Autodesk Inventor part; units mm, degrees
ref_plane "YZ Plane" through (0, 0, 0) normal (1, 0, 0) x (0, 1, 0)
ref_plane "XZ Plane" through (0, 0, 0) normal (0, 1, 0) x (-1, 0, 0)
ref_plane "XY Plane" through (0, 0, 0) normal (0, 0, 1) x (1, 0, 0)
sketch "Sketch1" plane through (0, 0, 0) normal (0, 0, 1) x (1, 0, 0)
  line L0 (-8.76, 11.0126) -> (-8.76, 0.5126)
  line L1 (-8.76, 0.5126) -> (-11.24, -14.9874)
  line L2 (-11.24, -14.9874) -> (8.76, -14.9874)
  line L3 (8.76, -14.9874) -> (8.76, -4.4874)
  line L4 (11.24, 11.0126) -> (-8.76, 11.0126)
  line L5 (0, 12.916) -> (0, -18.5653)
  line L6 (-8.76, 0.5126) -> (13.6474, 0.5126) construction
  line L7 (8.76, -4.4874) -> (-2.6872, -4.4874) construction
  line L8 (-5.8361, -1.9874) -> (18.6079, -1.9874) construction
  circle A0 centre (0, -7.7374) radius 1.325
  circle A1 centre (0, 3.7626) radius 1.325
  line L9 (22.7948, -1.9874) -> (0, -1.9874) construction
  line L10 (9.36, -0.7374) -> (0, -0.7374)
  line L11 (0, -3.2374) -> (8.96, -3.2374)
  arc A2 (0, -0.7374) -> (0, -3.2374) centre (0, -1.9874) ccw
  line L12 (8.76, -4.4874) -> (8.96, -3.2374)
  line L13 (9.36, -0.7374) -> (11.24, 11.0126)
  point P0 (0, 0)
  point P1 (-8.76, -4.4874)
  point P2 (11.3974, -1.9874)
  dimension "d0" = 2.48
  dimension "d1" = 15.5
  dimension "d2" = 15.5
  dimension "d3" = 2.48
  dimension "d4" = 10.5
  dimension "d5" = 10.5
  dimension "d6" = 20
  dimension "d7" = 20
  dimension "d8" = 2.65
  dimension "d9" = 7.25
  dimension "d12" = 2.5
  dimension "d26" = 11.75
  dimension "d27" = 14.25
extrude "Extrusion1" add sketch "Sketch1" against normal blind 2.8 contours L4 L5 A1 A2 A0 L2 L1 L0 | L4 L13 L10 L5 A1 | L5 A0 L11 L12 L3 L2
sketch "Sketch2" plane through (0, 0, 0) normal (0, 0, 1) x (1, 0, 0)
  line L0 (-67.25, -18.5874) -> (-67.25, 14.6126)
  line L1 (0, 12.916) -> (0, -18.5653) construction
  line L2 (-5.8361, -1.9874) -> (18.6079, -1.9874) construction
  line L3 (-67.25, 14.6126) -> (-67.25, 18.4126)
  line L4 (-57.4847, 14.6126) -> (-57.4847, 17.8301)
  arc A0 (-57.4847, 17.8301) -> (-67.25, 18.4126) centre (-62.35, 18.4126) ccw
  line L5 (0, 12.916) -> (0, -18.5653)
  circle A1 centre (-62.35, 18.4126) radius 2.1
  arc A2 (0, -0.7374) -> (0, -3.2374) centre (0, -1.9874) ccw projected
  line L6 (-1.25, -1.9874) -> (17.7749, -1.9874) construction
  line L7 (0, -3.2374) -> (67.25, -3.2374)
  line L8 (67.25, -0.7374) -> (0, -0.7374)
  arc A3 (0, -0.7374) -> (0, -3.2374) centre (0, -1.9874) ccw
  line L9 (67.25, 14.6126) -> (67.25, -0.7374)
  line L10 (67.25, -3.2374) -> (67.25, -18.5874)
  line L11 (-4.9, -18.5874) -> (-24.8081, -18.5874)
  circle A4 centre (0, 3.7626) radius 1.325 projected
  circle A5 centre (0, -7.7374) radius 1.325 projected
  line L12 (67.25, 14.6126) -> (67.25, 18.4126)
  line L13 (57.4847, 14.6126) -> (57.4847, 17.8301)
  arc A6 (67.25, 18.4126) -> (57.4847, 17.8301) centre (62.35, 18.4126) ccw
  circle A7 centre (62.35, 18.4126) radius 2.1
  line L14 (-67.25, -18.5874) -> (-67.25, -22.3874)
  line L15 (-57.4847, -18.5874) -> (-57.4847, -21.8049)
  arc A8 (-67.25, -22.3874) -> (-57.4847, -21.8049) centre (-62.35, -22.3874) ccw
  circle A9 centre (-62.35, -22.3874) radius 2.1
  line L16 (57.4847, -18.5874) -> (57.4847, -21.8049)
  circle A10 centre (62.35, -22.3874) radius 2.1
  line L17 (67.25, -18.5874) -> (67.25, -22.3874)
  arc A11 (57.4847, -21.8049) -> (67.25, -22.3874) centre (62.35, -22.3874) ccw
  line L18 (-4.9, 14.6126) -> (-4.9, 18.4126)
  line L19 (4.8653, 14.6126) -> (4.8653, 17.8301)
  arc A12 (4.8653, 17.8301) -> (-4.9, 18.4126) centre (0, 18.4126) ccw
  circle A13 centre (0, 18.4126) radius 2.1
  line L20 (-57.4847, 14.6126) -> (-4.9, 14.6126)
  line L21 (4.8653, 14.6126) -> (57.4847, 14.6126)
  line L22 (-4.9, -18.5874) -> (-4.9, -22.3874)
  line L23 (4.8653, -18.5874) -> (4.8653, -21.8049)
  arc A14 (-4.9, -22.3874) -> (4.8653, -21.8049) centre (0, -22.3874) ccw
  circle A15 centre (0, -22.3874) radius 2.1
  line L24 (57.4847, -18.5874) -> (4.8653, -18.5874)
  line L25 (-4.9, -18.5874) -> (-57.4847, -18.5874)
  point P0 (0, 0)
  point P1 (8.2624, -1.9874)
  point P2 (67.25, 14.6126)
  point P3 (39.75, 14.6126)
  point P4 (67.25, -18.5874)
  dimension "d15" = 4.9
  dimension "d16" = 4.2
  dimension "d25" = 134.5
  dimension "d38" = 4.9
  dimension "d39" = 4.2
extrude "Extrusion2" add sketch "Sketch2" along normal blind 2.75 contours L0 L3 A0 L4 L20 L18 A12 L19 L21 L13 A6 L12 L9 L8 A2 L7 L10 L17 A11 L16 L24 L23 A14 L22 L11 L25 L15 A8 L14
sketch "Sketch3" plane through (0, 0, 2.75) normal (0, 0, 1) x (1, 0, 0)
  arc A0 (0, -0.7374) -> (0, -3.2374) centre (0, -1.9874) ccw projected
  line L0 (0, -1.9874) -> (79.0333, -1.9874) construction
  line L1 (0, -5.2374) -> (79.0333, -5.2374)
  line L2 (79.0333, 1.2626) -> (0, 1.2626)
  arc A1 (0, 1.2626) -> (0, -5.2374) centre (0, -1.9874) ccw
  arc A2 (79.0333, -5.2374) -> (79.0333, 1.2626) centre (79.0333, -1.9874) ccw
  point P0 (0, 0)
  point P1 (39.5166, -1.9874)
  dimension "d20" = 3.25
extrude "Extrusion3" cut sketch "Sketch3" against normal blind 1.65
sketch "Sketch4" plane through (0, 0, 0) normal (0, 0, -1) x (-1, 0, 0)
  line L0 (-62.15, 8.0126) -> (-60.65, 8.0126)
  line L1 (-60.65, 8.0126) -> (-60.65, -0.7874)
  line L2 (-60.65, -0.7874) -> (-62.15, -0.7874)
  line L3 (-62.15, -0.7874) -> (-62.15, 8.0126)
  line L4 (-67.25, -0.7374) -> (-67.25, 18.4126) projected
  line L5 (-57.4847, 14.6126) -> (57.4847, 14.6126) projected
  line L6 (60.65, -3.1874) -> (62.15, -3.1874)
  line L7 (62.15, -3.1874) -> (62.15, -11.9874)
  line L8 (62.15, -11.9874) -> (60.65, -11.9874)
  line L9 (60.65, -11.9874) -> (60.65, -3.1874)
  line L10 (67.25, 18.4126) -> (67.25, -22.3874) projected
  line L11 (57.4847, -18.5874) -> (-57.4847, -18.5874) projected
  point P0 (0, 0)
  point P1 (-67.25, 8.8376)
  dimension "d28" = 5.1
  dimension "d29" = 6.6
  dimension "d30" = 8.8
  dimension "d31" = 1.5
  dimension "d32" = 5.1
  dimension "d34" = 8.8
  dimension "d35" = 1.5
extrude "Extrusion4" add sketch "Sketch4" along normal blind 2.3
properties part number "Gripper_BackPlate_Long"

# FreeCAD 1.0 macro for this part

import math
import FreeCAD as App
import Part
import Sketcher

V = App.Vector
Q = App.Units.Quantity


def add_polygon(sketch, points):
    """Adds a closed chain of lines whose ends are joined by coincident constraints."""
    first, n = sketch.GeometryCount, len(points)
    for a, b in zip(points, points[1:] + points[:1]):
        sketch.addGeometry(Part.LineSegment(App.Vector(*a, 0), App.Vector(*b, 0)), False)
    for i in range(n):
        sketch.addConstraint(Sketcher.Constraint("Coincident", first + i, 2, first + (i + 1) % n, 1))

doc = App.newDocument("Part")
body = doc.addObject("PartDesign::Body", "Body")

# Sketch on XY plane
sketch1 = body.newObject("Sketcher::SketchObject", "Sketch")
sketch1.AttachmentSupport = (doc.getObject("XY_Plane"), [""])
sketch1.MapMode = "FlatFace"
sketch1.addGeometry(Part.LineSegment(V(-8.8, 11, 0), V(-8.8, 0.5, 0)), False)
sketch1.addGeometry(Part.LineSegment(V(-8.8, 0.5, 0), V(-11.2, -15, 0)), False)
sketch1.addGeometry(Part.LineSegment(V(-11.2, -15, 0), V(8.8, -15, 0)), False)
sketch1.addGeometry(Part.LineSegment(V(8.8, -15, 0), V(8.8, -4.5, 0)), False)
sketch1.addGeometry(Part.LineSegment(V(8.8, -4.5, 0), V(9, -3.2, 0)), False)
sketch1.addGeometry(Part.LineSegment(V(9, -3.2, 0), V(0, -3.2, 0)), False)
sketch1.addGeometry(Part.ArcOfCircle(Part.Circle(V(0, -2, 0), V(0, 0, 1), 1.2), math.radians(90), math.radians(270)), False)
sketch1.addGeometry(Part.LineSegment(V(0, -0.7, 0), V(9.4, -0.7, 0)), False)
sketch1.addGeometry(Part.LineSegment(V(9.4, -0.7, 0), V(11.2, 11, 0)), False)
sketch1.addGeometry(Part.LineSegment(V(11.2, 11, 0), V(-8.8, 11, 0)), False)
sketch1.addGeometry(Part.Circle(V(0, 3.8, 0), V(0, 0, 1), 1.3), False)
sketch1.addGeometry(Part.Circle(V(0, -7.7, 0), V(0, 0, 1), 1.3), False)
sketch1.addConstraint(Sketcher.Constraint("Coincident", 0, 2, 1, 1))
sketch1.addConstraint(Sketcher.Constraint("Coincident", 1, 2, 2, 1))
sketch1.addConstraint(Sketcher.Constraint("Coincident", 2, 2, 3, 1))
sketch1.addConstraint(Sketcher.Constraint("Coincident", 3, 2, 4, 1))
sketch1.addConstraint(Sketcher.Constraint("Coincident", 4, 2, 5, 1))
sketch1.addConstraint(Sketcher.Constraint("Tangent", 5, 2, 6, 2))
sketch1.addConstraint(Sketcher.Constraint("Tangent", 6, 1, 7, 1))
sketch1.addConstraint(Sketcher.Constraint("Coincident", 7, 2, 8, 1))
sketch1.addConstraint(Sketcher.Constraint("Coincident", 8, 2, 9, 1))
sketch1.addConstraint(Sketcher.Constraint("Coincident", 9, 2, 0, 1))
sketch1.addConstraint(Sketcher.Constraint("Vertical", 0))
sketch1.addConstraint(Sketcher.Constraint("Horizontal", 2))
sketch1.addConstraint(Sketcher.Constraint("Vertical", 3))
sketch1.addConstraint(Sketcher.Constraint("Horizontal", 5))
sketch1.addConstraint(Sketcher.Constraint("Horizontal", 7))
sketch1.addConstraint(Sketcher.Constraint("Horizontal", 9))
sketch1.addConstraint(Sketcher.Constraint("Equal", 10, 11))
sketch1.addConstraint(Sketcher.Constraint("PointOnObject", 6, 3, -2))
sketch1.addConstraint(Sketcher.Constraint("PointOnObject", 10, 3, -2))
sketch1.addConstraint(Sketcher.Constraint("PointOnObject", 11, 3, -2))
sketch1.addConstraint(Sketcher.Constraint("Parallel", 1, 4))
sketch1.addConstraint(Sketcher.Constraint("Parallel", 4, 8))
sketch1.addConstraint(Sketcher.Constraint("Equal", 2, 9))
sketch1.addConstraint(Sketcher.Constraint("Equal", 0, 3))
sketch1.addConstraint(Sketcher.Constraint("Diameter", 10, Q("2.65 mm")))
sketch1.addConstraint(Sketcher.Constraint("DistanceX", 2, 1, 2, 2, Q("20 mm")))
sketch1.addConstraint(Sketcher.Constraint("Radius", 6, Q("1.25 mm")))
sketch1.addConstraint(Sketcher.Constraint("DistanceY", 0, 2, 0, 1, Q("10.5 mm")))
sketch1.addConstraint(Sketcher.Constraint("DistanceY", 6, 3, 0, 2, Q("2.5 mm")))
sketch1.addConstraint(Sketcher.Constraint("DistanceY", 1, 2, 0, 2, Q("15.5 mm")))
sketch1.addConstraint(Sketcher.Constraint("DistanceY", 1, 2, 11, 3, Q("7.25 mm")))
sketch1.addConstraint(Sketcher.Constraint("DistanceX", 1, 2, 0, 2, Q("2.48 mm")))
sketch1.addConstraint(Sketcher.Constraint("DistanceY", 10, 3, 8, 2, Q("7.25 mm")))
sketch1.addConstraint(Sketcher.Constraint("DistanceX", 5, 2, 5, 1, Q("8.96 mm")))
sketch1.addConstraint(Sketcher.Constraint("DistanceY", 6, 3, -1, 1, Q("1.9874 mm")))
pad1 = body.newObject("PartDesign::Pad", "Pad")
pad1.Profile = sketch1
pad1.Length = 2.8
pad1.Reversed = True

# Sketch on XY plane
sketch2 = body.newObject("Sketcher::SketchObject", "Sketch001")
sketch2.AttachmentSupport = (doc.getObject("XY_Plane"), [""])
sketch2.MapMode = "FlatFace"
sketch2.addGeometry(Part.LineSegment(V(-67.2, 18.4, 0), V(-67.2, -22.4, 0)), False)
sketch2.addGeometry(Part.ArcOfCircle(Part.Circle(V(-62.4, -22.4, 0), V(0, 0, 1), 4.9), math.radians(180), math.radians(367)), False)
sketch2.addGeometry(Part.LineSegment(V(-57.5, -21.8, 0), V(-57.5, -18.6, 0)), False)
sketch2.addGeometry(Part.LineSegment(V(-57.5, -18.6, 0), V(-4.9, -18.6, 0)), False)
sketch2.addGeometry(Part.LineSegment(V(-4.9, -18.6, 0), V(-4.9, -22.4, 0)), False)
sketch2.addGeometry(Part.ArcOfCircle(Part.Circle(V(0, -22.4, 0), V(0, 0, 1), 4.9), math.radians(180), math.radians(367)), False)
sketch2.addGeometry(Part.LineSegment(V(4.9, -21.8, 0), V(4.9, -18.6, 0)), False)
sketch2.addGeometry(Part.LineSegment(V(4.9, -18.6, 0), V(57.5, -18.6, 0)), False)
sketch2.addGeometry(Part.LineSegment(V(57.5, -18.6, 0), V(57.5, -21.8, 0)), False)
sketch2.addGeometry(Part.ArcOfCircle(Part.Circle(V(62.4, -22.4, 0), V(0, 0, 1), 4.9), math.radians(173), math.radians(360)), False)
sketch2.addGeometry(Part.LineSegment(V(67.2, -22.4, 0), V(67.2, -3.2, 0)), False)
sketch2.addGeometry(Part.LineSegment(V(67.2, -3.2, 0), V(0, -3.2, 0)), False)
sketch2.addGeometry(Part.ArcOfCircle(Part.Circle(V(0, -2, 0), V(0, 0, 1), 1.2), math.radians(90), math.radians(270)), False)
sketch2.addGeometry(Part.LineSegment(V(0, -0.7, 0), V(67.2, -0.7, 0)), False)
sketch2.addGeometry(Part.LineSegment(V(67.2, -0.7, 0), V(67.2, 18.4, 0)), False)
sketch2.addGeometry(Part.ArcOfCircle(Part.Circle(V(62.4, 18.4, 0), V(0, 0, 1), 4.9), math.radians(0), math.radians(187)), False)
sketch2.addGeometry(Part.LineSegment(V(57.5, 17.8, 0), V(57.5, 14.6, 0)), False)
sketch2.addGeometry(Part.LineSegment(V(57.5, 14.6, 0), V(4.9, 14.6, 0)), False)
sketch2.addGeometry(Part.LineSegment(V(4.9, 14.6, 0), V(4.9, 17.8, 0)), False)
sketch2.addGeometry(Part.ArcOfCircle(Part.Circle(V(0, 18.4, 0), V(0, 0, 1), 4.9), math.radians(-7), math.radians(180)), False)
sketch2.addGeometry(Part.LineSegment(V(-4.9, 18.4, 0), V(-4.9, 14.6, 0)), False)
sketch2.addGeometry(Part.LineSegment(V(-4.9, 14.6, 0), V(-57.5, 14.6, 0)), False)
sketch2.addGeometry(Part.LineSegment(V(-57.5, 14.6, 0), V(-57.5, 17.8, 0)), False)
sketch2.addGeometry(Part.ArcOfCircle(Part.Circle(V(-62.4, 18.4, 0), V(0, 0, 1), 4.9), math.radians(-7), math.radians(180)), False)
sketch2.addGeometry(Part.Circle(V(-62.4, -22.4, 0), V(0, 0, 1), 2.1), False)
sketch2.addGeometry(Part.Circle(V(0, -22.4, 0), V(0, 0, 1), 2.1), False)
sketch2.addGeometry(Part.Circle(V(62.4, -22.4, 0), V(0, 0, 1), 2.1), False)
sketch2.addGeometry(Part.Circle(V(0, -7.7, 0), V(0, 0, 1), 1.3), False)
sketch2.addGeometry(Part.Circle(V(-62.4, 18.4, 0), V(0, 0, 1), 2.1), False)
sketch2.addGeometry(Part.Circle(V(0, 3.8, 0), V(0, 0, 1), 1.3), False)
sketch2.addGeometry(Part.Circle(V(0, 18.4, 0), V(0, 0, 1), 2.1), False)
sketch2.addGeometry(Part.Circle(V(62.4, 18.4, 0), V(0, 0, 1), 2.1), False)
sketch2.addConstraint(Sketcher.Constraint("Tangent", 0, 2, 1, 1))
sketch2.addConstraint(Sketcher.Constraint("Coincident", 1, 2, 2, 1))
sketch2.addConstraint(Sketcher.Constraint("Coincident", 2, 2, 3, 1))
sketch2.addConstraint(Sketcher.Constraint("Coincident", 3, 2, 4, 1))
sketch2.addConstraint(Sketcher.Constraint("Tangent", 4, 2, 5, 1))
sketch2.addConstraint(Sketcher.Constraint("Coincident", 5, 2, 6, 1))
sketch2.addConstraint(Sketcher.Constraint("Coincident", 6, 2, 7, 1))
sketch2.addConstraint(Sketcher.Constraint("Coincident", 7, 2, 8, 1))
sketch2.addConstraint(Sketcher.Constraint("Coincident", 8, 2, 9, 1))
sketch2.addConstraint(Sketcher.Constraint("Tangent", 9, 2, 10, 1))
sketch2.addConstraint(Sketcher.Constraint("Coincident", 10, 2, 11, 1))
sketch2.addConstraint(Sketcher.Constraint("Tangent", 11, 2, 12, 2))
sketch2.addConstraint(Sketcher.Constraint("Tangent", 12, 1, 13, 1))
sketch2.addConstraint(Sketcher.Constraint("Coincident", 13, 2, 14, 1))
sketch2.addConstraint(Sketcher.Constraint("Tangent", 14, 2, 15, 1))
sketch2.addConstraint(Sketcher.Constraint("Coincident", 15, 2, 16, 1))
sketch2.addConstraint(Sketcher.Constraint("Coincident", 16, 2, 17, 1))
sketch2.addConstraint(Sketcher.Constraint("Coincident", 17, 2, 18, 1))
sketch2.addConstraint(Sketcher.Constraint("Coincident", 18, 2, 19, 1))
sketch2.addConstraint(Sketcher.Constraint("Tangent", 19, 2, 20, 1))
sketch2.addConstraint(Sketcher.Constraint("Coincident", 20, 2, 21, 1))
sketch2.addConstraint(Sketcher.Constraint("Coincident", 21, 2, 22, 1))
sketch2.addConstraint(Sketcher.Constraint("Coincident", 22, 2, 23, 1))
sketch2.addConstraint(Sketcher.Constraint("Tangent", 23, 2, 0, 1))
sketch2.addConstraint(Sketcher.Constraint("Vertical", 0))
sketch2.addConstraint(Sketcher.Constraint("Vertical", 2))
sketch2.addConstraint(Sketcher.Constraint("Horizontal", 3))
sketch2.addConstraint(Sketcher.Constraint("Vertical", 4))
sketch2.addConstraint(Sketcher.Constraint("Vertical", 6))
sketch2.addConstraint(Sketcher.Constraint("Horizontal", 7))
sketch2.addConstraint(Sketcher.Constraint("Vertical", 8))
sketch2.addConstraint(Sketcher.Constraint("Vertical", 10))
sketch2.addConstraint(Sketcher.Constraint("Horizontal", 11))
sketch2.addConstraint(Sketcher.Constraint("Horizontal", 13))
sketch2.addConstraint(Sketcher.Constraint("Vertical", 14))
sketch2.addConstraint(Sketcher.Constraint("Vertical", 16))
sketch2.addConstraint(Sketcher.Constraint("Horizontal", 17))
sketch2.addConstraint(Sketcher.Constraint("Vertical", 18))
sketch2.addConstraint(Sketcher.Constraint("Vertical", 20))
sketch2.addConstraint(Sketcher.Constraint("Horizontal", 21))
sketch2.addConstraint(Sketcher.Constraint("Vertical", 22))
sketch2.addConstraint(Sketcher.Constraint("Coincident", 24, 3, 1, 3))
sketch2.addConstraint(Sketcher.Constraint("Coincident", 25, 3, 5, 3))
sketch2.addConstraint(Sketcher.Constraint("Coincident", 26, 3, 9, 3))
sketch2.addConstraint(Sketcher.Constraint("Coincident", 28, 3, 23, 3))
sketch2.addConstraint(Sketcher.Constraint("Coincident", 30, 3, 19, 3))
sketch2.addConstraint(Sketcher.Constraint("Coincident", 31, 3, 15, 3))
sketch2.addConstraint(Sketcher.Constraint("Equal", 1, 5))
sketch2.addConstraint(Sketcher.Constraint("Equal", 5, 9))
sketch2.addConstraint(Sketcher.Constraint("Equal", 9, 15))
sketch2.addConstraint(Sketcher.Constraint("Equal", 15, 19))
sketch2.addConstraint(Sketcher.Constraint("Equal", 19, 23))
sketch2.addConstraint(Sketcher.Constraint("Equal", 24, 25))
sketch2.addConstraint(Sketcher.Constraint("Equal", 25, 26))
sketch2.addConstraint(Sketcher.Constraint("Equal", 26, 28))
sketch2.addConstraint(Sketcher.Constraint("Equal", 27, 29))
sketch2.addConstraint(Sketcher.Constraint("Equal", 28, 30))
sketch2.addConstraint(Sketcher.Constraint("Equal", 30, 31))
sketch2.addConstraint(Sketcher.Constraint("Symmetric", 1, 3, 9, 3, -2))
sketch2.addConstraint(Sketcher.Constraint("Symmetric", 15, 3, 23, 3, -2))
sketch2.addConstraint(Sketcher.Constraint("Symmetric", 2, 2, 7, 2, -2))
sketch2.addConstraint(Sketcher.Constraint("Symmetric", 16, 2, 21, 2, -2))
sketch2.addConstraint(Sketcher.Constraint("PointOnObject", 5, 3, -2))
sketch2.addConstraint(Sketcher.Constraint("PointOnObject", 12, 3, -2))
sketch2.addConstraint(Sketcher.Constraint("PointOnObject", 19, 3, -2))
sketch2.addConstraint(Sketcher.Constraint("PointOnObject", 27, 3, -2))
sketch2.addConstraint(Sketcher.Constraint("PointOnObject", 29, 3, -2))
sketch2.addConstraint(Sketcher.Constraint("Horizontal", 1, 3, 5, 3))
sketch2.addConstraint(Sketcher.Constraint("Horizontal", 15, 3, 19, 3))
sketch2.addConstraint(Sketcher.Constraint("Horizontal", 1, 2, 5, 2))
sketch2.addConstraint(Sketcher.Constraint("Horizontal", 15, 2, 18, 2))
sketch2.addConstraint(Sketcher.Constraint("Vertical", 8, 2, 15, 2))
sketch2.addConstraint(Sketcher.Constraint("Equal", 10, 14))
sketch2.addConstraint(Sketcher.Constraint("Equal", 8, 16))
sketch2.addConstraint(Sketcher.Constraint("Diameter", 24, Q("4.2 mm")))
sketch2.addConstraint(Sketcher.Constraint("Radius", 1, Q("4.9 mm")))
sketch2.addConstraint(Sketcher.Constraint("Diameter", 27, Q("2.65 mm")))
sketch2.addConstraint(Sketcher.Constraint("Radius", 12, Q("1.25 mm")))
sketch2.addConstraint(Sketcher.Constraint("DistanceY", 0, 2, 0, 1, Q("40.8 mm")))
sketch2.addConstraint(Sketcher.Constraint("DistanceY", 4, 2, 4, 1, Q("3.8 mm")))
sketch2.addConstraint(Sketcher.Constraint("DistanceY", 11, 2, 29, 3, Q("7 mm")))
sketch2.addConstraint(Sketcher.Constraint("DistanceY", 27, 3, 12, 1, Q("7 mm")))
sketch2.addConstraint(Sketcher.Constraint("DistanceX", 11, 2, 11, 1, Q("67.25 mm")))
sketch2.addConstraint(Sketcher.Constraint("DistanceY", -1, 1, 15, 2, Q("17.83 mm")))
sketch2.addConstraint(Sketcher.Constraint("DistanceX", 3, 1, 3, 2, Q("52.5847 mm")))
pad2 = body.newObject("PartDesign::Pad", "Pad001")
pad2.Profile = sketch2
pad2.Length = 2.75

# Sketch on XY plane
sketch3 = body.newObject("Sketcher::SketchObject", "Sketch002")
sketch3.AttachmentSupport = (doc.getObject("XY_Plane"), [""])
sketch3.MapMode = "FlatFace"
sketch3.AttachmentOffset = App.Placement(V(0, 0, 2.75), App.Rotation())
sketch3.addGeometry(Part.ArcOfCircle(Part.Circle(V(0, -2, 0), V(0, 0, 1), 3.2), math.radians(90), math.radians(270)), False)
sketch3.addGeometry(Part.LineSegment(V(0, -5.2, 0), V(79, -5.2, 0)), False)
sketch3.addGeometry(Part.ArcOfCircle(Part.Circle(V(79, -2, 0), V(0, 0, 1), 3.2), math.radians(-90), math.radians(90)), False)
sketch3.addGeometry(Part.LineSegment(V(79, 1.3, 0), V(0, 1.3, 0)), False)
sketch3.addConstraint(Sketcher.Constraint("Tangent", 0, 2, 1, 1))
sketch3.addConstraint(Sketcher.Constraint("Tangent", 1, 2, 2, 1))
sketch3.addConstraint(Sketcher.Constraint("Tangent", 2, 2, 3, 1))
sketch3.addConstraint(Sketcher.Constraint("Tangent", 3, 2, 0, 1))
sketch3.addConstraint(Sketcher.Constraint("Horizontal", 1))
sketch3.addConstraint(Sketcher.Constraint("Horizontal", 3))
sketch3.addConstraint(Sketcher.Constraint("PointOnObject", 0, 3, -2))
sketch3.addConstraint(Sketcher.Constraint("Radius", 0, Q("3.25 mm")))
sketch3.addConstraint(Sketcher.Constraint("DistanceX", 1, 1, 1, 2, Q("79.0333 mm")))
sketch3.addConstraint(Sketcher.Constraint("DistanceY", 0, 3, -1, 1, Q("1.9874 mm")))
pocket1 = body.newObject("PartDesign::Pocket", "Pocket")
pocket1.Profile = sketch3
pocket1.Length = 1.65

# Sketch on XY plane
sketch4 = body.newObject("Sketcher::SketchObject", "Sketch003")
sketch4.AttachmentSupport = (doc.getObject("XY_Plane"), [""])
sketch4.MapMode = "FlatFace"
add_polygon(sketch4, [(60.6, 8), (62.1, 8), (62.1, -0.8), (60.6, -0.8)])  # lines 0-3
add_polygon(sketch4, [(-62.1, -3.2), (-60.6, -3.2), (-60.6, -12), (-62.1, -12)])  # lines 4-7
sketch4.addConstraint(Sketcher.Constraint("Horizontal", 0))
sketch4.addConstraint(Sketcher.Constraint("Vertical", 1))
sketch4.addConstraint(Sketcher.Constraint("Horizontal", 2))
sketch4.addConstraint(Sketcher.Constraint("Vertical", 3))
sketch4.addConstraint(Sketcher.Constraint("Horizontal", 4))
sketch4.addConstraint(Sketcher.Constraint("Vertical", 5))
sketch4.addConstraint(Sketcher.Constraint("Horizontal", 6))
sketch4.addConstraint(Sketcher.Constraint("Vertical", 7))
sketch4.addConstraint(Sketcher.Constraint("Equal", 2, 4))
sketch4.addConstraint(Sketcher.Constraint("Equal", 3, 5))
sketch4.addConstraint(Sketcher.Constraint("DistanceX", 0, 1, 0, 2, Q("1.5 mm")))
sketch4.addConstraint(Sketcher.Constraint("DistanceY", 1, 2, 1, 1, Q("8.8 mm")))
sketch4.addConstraint(Sketcher.Constraint("DistanceY", 5, 2, 3, 2, Q("20 mm")))
sketch4.addConstraint(Sketcher.Constraint("DistanceX", 4, 2, 2, 2, Q("121.3 mm")))
sketch4.addConstraint(Sketcher.Constraint("DistanceX", -1, 1, 0, 2, Q("62.15 mm")))
sketch4.addConstraint(Sketcher.Constraint("DistanceY", -1, 1, 0, 2, Q("8.0126 mm")))
pad3 = body.newObject("PartDesign::Pad", "Pad002")
pad3.Profile = sketch4
pad3.Length = 2.3
pad3.Reversed = True

doc.recompute()
